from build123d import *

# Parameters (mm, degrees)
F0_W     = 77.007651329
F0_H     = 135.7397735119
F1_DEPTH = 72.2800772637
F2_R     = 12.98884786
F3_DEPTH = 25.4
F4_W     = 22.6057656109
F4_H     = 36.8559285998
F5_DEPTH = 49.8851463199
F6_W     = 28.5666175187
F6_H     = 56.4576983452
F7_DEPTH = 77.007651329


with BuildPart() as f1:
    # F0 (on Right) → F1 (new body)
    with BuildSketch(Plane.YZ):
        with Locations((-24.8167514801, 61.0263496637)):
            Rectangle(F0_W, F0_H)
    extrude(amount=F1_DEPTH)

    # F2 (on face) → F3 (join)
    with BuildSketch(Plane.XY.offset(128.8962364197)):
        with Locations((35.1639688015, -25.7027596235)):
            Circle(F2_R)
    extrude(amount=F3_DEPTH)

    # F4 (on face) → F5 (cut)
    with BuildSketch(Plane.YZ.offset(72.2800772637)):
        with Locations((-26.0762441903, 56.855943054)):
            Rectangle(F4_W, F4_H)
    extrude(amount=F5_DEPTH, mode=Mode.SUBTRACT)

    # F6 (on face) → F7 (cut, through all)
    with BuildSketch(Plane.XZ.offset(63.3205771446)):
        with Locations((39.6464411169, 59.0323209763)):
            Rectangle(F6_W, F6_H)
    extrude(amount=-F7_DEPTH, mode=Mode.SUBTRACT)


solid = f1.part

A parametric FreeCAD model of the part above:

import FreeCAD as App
import Part
import Sketcher
from FreeCAD import Vector
Q = App.Units.Quantity


def add_polygon(sketch, points):
    """Adds a closed chain of lines whose ends are joined by coincident constraints."""
    first, n = sketch.GeometryCount, len(points)
    for a, b in zip(points, points[1:] + points[:1]):
        sketch.addGeometry(Part.LineSegment(App.Vector(*a, 0), App.Vector(*b, 0)), False)
    for i in range(n):
        sketch.addConstraint(Sketcher.Constraint("Coincident", first + i, 2, first + (i + 1) % n, 1))

doc = App.newDocument("Part")
params = doc.addObject("Spreadsheet::Sheet", "Params")
for row, (alias, value) in enumerate([
    ("pad1_length", "72.280077 mm"),
    ("pad2_length", "1 in"),
    ("pocket1_length", "49.885146 mm"),
], start=1):
    params.set(f"A{row}", alias)
    params.set(f"B{row}", "=" + value)
    params.setAlias(f"B{row}", alias)

body = doc.addObject("PartDesign::Body", "Body")

sketch1 = body.newObject("Sketcher::SketchObject", "Sketch")
sketch1.AttachmentSupport = (doc.getObject("YZ_Plane"), [""])
sketch1.MapMode = "FlatFace"
add_polygon(sketch1, [(-63.320577, 128.896236), (-63.320577, -6.843537), (13.687074, -6.843537), (13.687074, 128.896236)])
sketch1.addConstraint(Sketcher.Constraint("Vertical", 0))
sketch1.addConstraint(Sketcher.Constraint("Horizontal", 1))
sketch1.addConstraint(Sketcher.Constraint("Vertical", 2))
sketch1.addConstraint(Sketcher.Constraint("Horizontal", 3))
sketch1.addConstraint(Sketcher.Constraint("DistanceX", 1, 1, 1, 2, Q("77.007651 mm")))
sketch1.addConstraint(Sketcher.Constraint("DistanceY", 0, 2, 0, 1, Q("135.739774 mm")))
sketch1.addConstraint(Sketcher.Constraint("DistanceX", 0, 2, -1, 1, Q("63.320577 mm")))
sketch1.addConstraint(Sketcher.Constraint("DistanceY", 0, 2, -1, 1, Q("6.843537 mm")))
pad1 = body.newObject("PartDesign::Pad", "Pad")
pad1.Profile = sketch1
pad1.setExpression("Length", "Params.pad1_length")

sketch2 = body.newObject("Sketcher::SketchObject", "Sketch001")
sketch2.AttachmentSupport = (doc.getObject("XY_Plane"), [""])
sketch2.MapMode = "FlatFace"
sketch2.AttachmentOffset = App.Placement(Vector(0, 0, 128.896236), App.Rotation())
sketch2.addGeometry(Part.Circle(Vector(35.163969, -25.70276, 0), Vector(0, 0, 1), 12.988848), False)
sketch2.addConstraint(Sketcher.Constraint("Diameter", 0, Q("25.977696 mm")))
sketch2.addConstraint(Sketcher.Constraint("DistanceX", -1, 1, 0, 3, Q("35.163969 mm")))
sketch2.addConstraint(Sketcher.Constraint("DistanceY", 0, 3, -1, 1, Q("25.70276 mm")))
pad2 = body.newObject("PartDesign::Pad", "Pad001")
pad2.Profile = sketch2
pad2.setExpression("Length", "Params.pad2_length")

sketch3 = body.newObject("Sketcher::SketchObject", "Sketch002")
sketch3.AttachmentSupport = (doc.getObject("YZ_Plane"), [""])
sketch3.MapMode = "FlatFace"
sketch3.AttachmentOffset = App.Placement(Vector(0, 0, 72.280077), App.Rotation())
add_polygon(sketch3, [(-37.379127, 75.283907), (-37.379127, 38.427979), (-14.773361, 38.427979), (-14.773361, 75.283907)])
sketch3.addConstraint(Sketcher.Constraint("Vertical", 0))
sketch3.addConstraint(Sketcher.Constraint("Horizontal", 1))
sketch3.addConstraint(Sketcher.Constraint("Vertical", 2))
sketch3.addConstraint(Sketcher.Constraint("Horizontal", 3))
sketch3.addConstraint(Sketcher.Constraint("DistanceY", 0, 2, 0, 1, Q("36.855929 mm")))
sketch3.addConstraint(Sketcher.Constraint("DistanceX", 1, 1, 1, 2, Q("22.605766 mm")))
sketch3.addConstraint(Sketcher.Constraint("DistanceY", -1, 1, 0, 2, Q("38.427979 mm")))
sketch3.addConstraint(Sketcher.Constraint("DistanceX", 1, 2, -1, 1, Q("14.773361 mm")))
pocket1 = body.newObject("PartDesign::Pocket", "Pocket")
pocket1.Profile = sketch3
pocket1.setExpression("Length", "Params.pocket1_length")
pocket1.Reversed = True

sketch4 = body.newObject("Sketcher::SketchObject", "Sketch003")
sketch4.AttachmentSupport = (doc.getObject("XZ_Plane"), [""])
sketch4.MapMode = "FlatFace"
sketch4.AttachmentOffset = App.Placement(Vector(0, 0, 63.320577), App.Rotation())
add_polygon(sketch4, [(25.363132, 87.26117), (25.363132, 30.803472), (53.92975, 30.803472), (53.92975, 87.26117)])
sketch4.addConstraint(Sketcher.Constraint("Vertical", 0))
sketch4.addConstraint(Sketcher.Constraint("Horizontal", 1))
sketch4.addConstraint(Sketcher.Constraint("Vertical", 2))
sketch4.addConstraint(Sketcher.Constraint("Horizontal", 3))
sketch4.addConstraint(Sketcher.Constraint("DistanceY", 0, 2, 0, 1, Q("56.457698 mm")))
sketch4.addConstraint(Sketcher.Constraint("DistanceX", 1, 1, 1, 2, Q("28.566618 mm")))
sketch4.addConstraint(Sketcher.Constraint("DistanceY", -1, 1, 0, 2, Q("30.803472 mm")))
sketch4.addConstraint(Sketcher.Constraint("DistanceX", -1, 1, 1, 2, Q("53.92975 mm")))
pocket2 = body.newObject("PartDesign::Pocket", "Pocket001")
pocket2.Profile = sketch4
pocket2.Type = "ThroughAll"

doc.recompute()
